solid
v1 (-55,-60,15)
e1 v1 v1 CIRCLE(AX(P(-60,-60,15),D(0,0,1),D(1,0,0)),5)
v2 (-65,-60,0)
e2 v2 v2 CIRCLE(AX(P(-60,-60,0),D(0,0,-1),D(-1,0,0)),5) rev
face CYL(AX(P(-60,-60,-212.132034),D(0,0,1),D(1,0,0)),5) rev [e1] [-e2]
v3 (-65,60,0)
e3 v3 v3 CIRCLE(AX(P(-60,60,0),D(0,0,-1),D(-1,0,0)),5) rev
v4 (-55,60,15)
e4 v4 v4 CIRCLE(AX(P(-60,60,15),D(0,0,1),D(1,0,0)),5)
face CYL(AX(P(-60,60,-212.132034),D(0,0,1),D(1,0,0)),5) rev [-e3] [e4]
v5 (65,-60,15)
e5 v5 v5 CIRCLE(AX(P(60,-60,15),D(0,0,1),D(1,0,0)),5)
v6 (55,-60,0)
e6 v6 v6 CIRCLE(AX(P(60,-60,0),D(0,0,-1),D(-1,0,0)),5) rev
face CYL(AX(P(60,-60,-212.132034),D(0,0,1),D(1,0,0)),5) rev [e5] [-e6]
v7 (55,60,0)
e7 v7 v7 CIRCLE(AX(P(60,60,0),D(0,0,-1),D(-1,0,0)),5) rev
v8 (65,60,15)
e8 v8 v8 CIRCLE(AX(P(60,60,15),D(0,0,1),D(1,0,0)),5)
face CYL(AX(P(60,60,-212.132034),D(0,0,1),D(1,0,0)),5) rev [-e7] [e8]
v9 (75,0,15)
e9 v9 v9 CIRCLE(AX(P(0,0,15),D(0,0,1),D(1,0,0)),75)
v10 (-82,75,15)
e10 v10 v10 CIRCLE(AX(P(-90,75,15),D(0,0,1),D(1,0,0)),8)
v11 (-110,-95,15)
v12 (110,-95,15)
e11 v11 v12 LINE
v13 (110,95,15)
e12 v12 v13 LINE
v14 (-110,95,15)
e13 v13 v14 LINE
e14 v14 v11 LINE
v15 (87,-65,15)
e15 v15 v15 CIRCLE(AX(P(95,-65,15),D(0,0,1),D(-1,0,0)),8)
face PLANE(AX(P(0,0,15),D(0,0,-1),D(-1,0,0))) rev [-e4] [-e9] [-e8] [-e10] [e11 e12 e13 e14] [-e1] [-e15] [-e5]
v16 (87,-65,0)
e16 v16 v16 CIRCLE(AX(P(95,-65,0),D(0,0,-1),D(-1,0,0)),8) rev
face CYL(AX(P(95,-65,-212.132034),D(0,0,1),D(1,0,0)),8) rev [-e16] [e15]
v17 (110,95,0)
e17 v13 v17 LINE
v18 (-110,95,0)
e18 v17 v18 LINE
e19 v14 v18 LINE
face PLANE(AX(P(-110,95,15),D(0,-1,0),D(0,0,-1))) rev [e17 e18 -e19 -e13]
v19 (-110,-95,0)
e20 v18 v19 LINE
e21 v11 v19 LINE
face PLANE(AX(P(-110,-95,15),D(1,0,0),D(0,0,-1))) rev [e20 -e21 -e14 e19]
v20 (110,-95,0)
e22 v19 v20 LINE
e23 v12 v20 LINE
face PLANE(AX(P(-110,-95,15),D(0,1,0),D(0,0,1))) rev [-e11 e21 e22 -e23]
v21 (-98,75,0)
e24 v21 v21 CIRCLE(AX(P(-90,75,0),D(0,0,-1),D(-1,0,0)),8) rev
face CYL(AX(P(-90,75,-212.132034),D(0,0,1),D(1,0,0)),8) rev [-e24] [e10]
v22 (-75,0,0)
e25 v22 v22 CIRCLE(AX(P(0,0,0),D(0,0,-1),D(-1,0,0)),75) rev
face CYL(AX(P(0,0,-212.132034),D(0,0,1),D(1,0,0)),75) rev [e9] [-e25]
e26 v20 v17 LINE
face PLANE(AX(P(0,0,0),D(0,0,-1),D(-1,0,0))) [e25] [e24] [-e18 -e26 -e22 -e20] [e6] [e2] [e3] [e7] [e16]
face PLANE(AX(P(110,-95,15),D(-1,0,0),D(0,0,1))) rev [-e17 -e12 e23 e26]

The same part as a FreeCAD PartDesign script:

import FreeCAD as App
import Part
import Sketcher

V = App.Vector


def add_polygon(sketch, points):
    """Adds a closed chain of lines whose ends are joined by coincident constraints."""
    first, n = sketch.GeometryCount, len(points)
    for a, b in zip(points, points[1:] + points[:1]):
        sketch.addGeometry(Part.LineSegment(App.Vector(*a, 0), App.Vector(*b, 0)), False)
    for i in range(n):
        sketch.addConstraint(Sketcher.Constraint("Coincident", first + i, 2, first + (i + 1) % n, 1))

doc = App.newDocument("Part")
body = doc.addObject("PartDesign::Body", "Body")

sketch1 = doc.addObject("Sketcher::SketchObject", "Sketch")
body.addObject(sketch1)
sketch1.AttachmentSupport = (doc.XY_Plane, [""])
sketch1.MapMode = "FlatFace"
add_polygon(sketch1, [(-110, 95), (-110, -95), (110, -95), (110, 95)])
sketch1.addConstraint(Sketcher.Constraint("Vertical", 0))
sketch1.addConstraint(Sketcher.Constraint("Horizontal", 1))
sketch1.addConstraint(Sketcher.Constraint("Vertical", 2))
sketch1.addConstraint(Sketcher.Constraint("Horizontal", 3))
sketch1.addConstraint(Sketcher.Constraint("Symmetric", 0, 2, 2, 2, -1, 1))
sketch1.addConstraint(Sketcher.Constraint("DistanceX", 1, 1, 1, 2, 220.0))
sketch1.addConstraint(Sketcher.Constraint("DistanceY", 0, 2, 0, 1, 190.0))
pad1 = doc.addObject("PartDesign::Pad", "Pad")
body.addObject(pad1)
pad1.Profile = sketch1
pad1.Length = 15

sketch2 = doc.addObject("Sketcher::SketchObject", "Sketch001")
body.addObject(sketch2)
sketch2.AttachmentSupport = (doc.XY_Plane, [""])
sketch2.MapMode = "FlatFace"
sketch2.AttachmentOffset = App.Placement(V(0, 0, 15), App.Rotation())
sketch2.addGeometry(Part.Circle(V(0, 0, 0), V(0, 0, 1), 75), False)
sketch2.addGeometry(Part.Circle(V(-90, 75, 0), V(0, 0, 1), 8), False)
sketch2.addGeometry(Part.Circle(V(95, -65, 0), V(0, 0, 1), 8), False)
sketch2.addGeometry(Part.Circle(V(-60, 60, 0), V(0, 0, 1), 5), False)
sketch2.addGeometry(Part.Circle(V(60, 60, 0), V(0, 0, 1), 5), False)
sketch2.addGeometry(Part.Circle(V(60, -60, 0), V(0, 0, 1), 5), False)
sketch2.addGeometry(Part.Circle(V(-60, -60, 0), V(0, 0, 1), 5), False)
sketch2.addConstraint(Sketcher.Constraint("Coincident", 0, 3, -1, 1))
sketch2.addConstraint(Sketcher.Constraint("Equal", 1, 2))
sketch2.addConstraint(Sketcher.Constraint("Equal", 3, 4))
sketch2.addConstraint(Sketcher.Constraint("Equal", 4, 5))
sketch2.addConstraint(Sketcher.Constraint("Equal", 5, 6))
sketch2.addConstraint(Sketcher.Constraint("Symmetric", 3, 3, 5, 3, -1, 1))
sketch2.addConstraint(Sketcher.Constraint("Symmetric", 4, 3, 6, 3, -1, 1))
sketch2.addConstraint(Sketcher.Constraint("Symmetric", 3, 3, 4, 3, -2))
sketch2.addConstraint(Sketcher.Constraint("Diameter", 0, 150.0))
sketch2.addConstraint(Sketcher.Constraint("Diameter", 1, 16.0))
sketch2.addConstraint(Sketcher.Constraint("Diameter", 3, 10.0))
sketch2.addConstraint(Sketcher.Constraint("DistanceX", 1, 3, -1, 1, 90.0))
sketch2.addConstraint(Sketcher.Constraint("DistanceY", -1, 1, 1, 3, 75.0))
sketch2.addConstraint(Sketcher.Constraint("DistanceX", -1, 1, 2, 3, 95.0))
sketch2.addConstraint(Sketcher.Constraint("DistanceY", 2, 3, -1, 1, 65.0))
sketch2.addConstraint(Sketcher.Constraint("DistanceX", 3, 3, -1, 1, 60.0))
sketch2.addConstraint(Sketcher.Constraint("DistanceY", -1, 1, 3, 3, 60.0))
pocket1 = doc.addObject("PartDesign::Pocket", "Pocket")
body.addObject(pocket1)
pocket1.Profile = sketch2
pocket1.Length = 15

doc.recompute()
